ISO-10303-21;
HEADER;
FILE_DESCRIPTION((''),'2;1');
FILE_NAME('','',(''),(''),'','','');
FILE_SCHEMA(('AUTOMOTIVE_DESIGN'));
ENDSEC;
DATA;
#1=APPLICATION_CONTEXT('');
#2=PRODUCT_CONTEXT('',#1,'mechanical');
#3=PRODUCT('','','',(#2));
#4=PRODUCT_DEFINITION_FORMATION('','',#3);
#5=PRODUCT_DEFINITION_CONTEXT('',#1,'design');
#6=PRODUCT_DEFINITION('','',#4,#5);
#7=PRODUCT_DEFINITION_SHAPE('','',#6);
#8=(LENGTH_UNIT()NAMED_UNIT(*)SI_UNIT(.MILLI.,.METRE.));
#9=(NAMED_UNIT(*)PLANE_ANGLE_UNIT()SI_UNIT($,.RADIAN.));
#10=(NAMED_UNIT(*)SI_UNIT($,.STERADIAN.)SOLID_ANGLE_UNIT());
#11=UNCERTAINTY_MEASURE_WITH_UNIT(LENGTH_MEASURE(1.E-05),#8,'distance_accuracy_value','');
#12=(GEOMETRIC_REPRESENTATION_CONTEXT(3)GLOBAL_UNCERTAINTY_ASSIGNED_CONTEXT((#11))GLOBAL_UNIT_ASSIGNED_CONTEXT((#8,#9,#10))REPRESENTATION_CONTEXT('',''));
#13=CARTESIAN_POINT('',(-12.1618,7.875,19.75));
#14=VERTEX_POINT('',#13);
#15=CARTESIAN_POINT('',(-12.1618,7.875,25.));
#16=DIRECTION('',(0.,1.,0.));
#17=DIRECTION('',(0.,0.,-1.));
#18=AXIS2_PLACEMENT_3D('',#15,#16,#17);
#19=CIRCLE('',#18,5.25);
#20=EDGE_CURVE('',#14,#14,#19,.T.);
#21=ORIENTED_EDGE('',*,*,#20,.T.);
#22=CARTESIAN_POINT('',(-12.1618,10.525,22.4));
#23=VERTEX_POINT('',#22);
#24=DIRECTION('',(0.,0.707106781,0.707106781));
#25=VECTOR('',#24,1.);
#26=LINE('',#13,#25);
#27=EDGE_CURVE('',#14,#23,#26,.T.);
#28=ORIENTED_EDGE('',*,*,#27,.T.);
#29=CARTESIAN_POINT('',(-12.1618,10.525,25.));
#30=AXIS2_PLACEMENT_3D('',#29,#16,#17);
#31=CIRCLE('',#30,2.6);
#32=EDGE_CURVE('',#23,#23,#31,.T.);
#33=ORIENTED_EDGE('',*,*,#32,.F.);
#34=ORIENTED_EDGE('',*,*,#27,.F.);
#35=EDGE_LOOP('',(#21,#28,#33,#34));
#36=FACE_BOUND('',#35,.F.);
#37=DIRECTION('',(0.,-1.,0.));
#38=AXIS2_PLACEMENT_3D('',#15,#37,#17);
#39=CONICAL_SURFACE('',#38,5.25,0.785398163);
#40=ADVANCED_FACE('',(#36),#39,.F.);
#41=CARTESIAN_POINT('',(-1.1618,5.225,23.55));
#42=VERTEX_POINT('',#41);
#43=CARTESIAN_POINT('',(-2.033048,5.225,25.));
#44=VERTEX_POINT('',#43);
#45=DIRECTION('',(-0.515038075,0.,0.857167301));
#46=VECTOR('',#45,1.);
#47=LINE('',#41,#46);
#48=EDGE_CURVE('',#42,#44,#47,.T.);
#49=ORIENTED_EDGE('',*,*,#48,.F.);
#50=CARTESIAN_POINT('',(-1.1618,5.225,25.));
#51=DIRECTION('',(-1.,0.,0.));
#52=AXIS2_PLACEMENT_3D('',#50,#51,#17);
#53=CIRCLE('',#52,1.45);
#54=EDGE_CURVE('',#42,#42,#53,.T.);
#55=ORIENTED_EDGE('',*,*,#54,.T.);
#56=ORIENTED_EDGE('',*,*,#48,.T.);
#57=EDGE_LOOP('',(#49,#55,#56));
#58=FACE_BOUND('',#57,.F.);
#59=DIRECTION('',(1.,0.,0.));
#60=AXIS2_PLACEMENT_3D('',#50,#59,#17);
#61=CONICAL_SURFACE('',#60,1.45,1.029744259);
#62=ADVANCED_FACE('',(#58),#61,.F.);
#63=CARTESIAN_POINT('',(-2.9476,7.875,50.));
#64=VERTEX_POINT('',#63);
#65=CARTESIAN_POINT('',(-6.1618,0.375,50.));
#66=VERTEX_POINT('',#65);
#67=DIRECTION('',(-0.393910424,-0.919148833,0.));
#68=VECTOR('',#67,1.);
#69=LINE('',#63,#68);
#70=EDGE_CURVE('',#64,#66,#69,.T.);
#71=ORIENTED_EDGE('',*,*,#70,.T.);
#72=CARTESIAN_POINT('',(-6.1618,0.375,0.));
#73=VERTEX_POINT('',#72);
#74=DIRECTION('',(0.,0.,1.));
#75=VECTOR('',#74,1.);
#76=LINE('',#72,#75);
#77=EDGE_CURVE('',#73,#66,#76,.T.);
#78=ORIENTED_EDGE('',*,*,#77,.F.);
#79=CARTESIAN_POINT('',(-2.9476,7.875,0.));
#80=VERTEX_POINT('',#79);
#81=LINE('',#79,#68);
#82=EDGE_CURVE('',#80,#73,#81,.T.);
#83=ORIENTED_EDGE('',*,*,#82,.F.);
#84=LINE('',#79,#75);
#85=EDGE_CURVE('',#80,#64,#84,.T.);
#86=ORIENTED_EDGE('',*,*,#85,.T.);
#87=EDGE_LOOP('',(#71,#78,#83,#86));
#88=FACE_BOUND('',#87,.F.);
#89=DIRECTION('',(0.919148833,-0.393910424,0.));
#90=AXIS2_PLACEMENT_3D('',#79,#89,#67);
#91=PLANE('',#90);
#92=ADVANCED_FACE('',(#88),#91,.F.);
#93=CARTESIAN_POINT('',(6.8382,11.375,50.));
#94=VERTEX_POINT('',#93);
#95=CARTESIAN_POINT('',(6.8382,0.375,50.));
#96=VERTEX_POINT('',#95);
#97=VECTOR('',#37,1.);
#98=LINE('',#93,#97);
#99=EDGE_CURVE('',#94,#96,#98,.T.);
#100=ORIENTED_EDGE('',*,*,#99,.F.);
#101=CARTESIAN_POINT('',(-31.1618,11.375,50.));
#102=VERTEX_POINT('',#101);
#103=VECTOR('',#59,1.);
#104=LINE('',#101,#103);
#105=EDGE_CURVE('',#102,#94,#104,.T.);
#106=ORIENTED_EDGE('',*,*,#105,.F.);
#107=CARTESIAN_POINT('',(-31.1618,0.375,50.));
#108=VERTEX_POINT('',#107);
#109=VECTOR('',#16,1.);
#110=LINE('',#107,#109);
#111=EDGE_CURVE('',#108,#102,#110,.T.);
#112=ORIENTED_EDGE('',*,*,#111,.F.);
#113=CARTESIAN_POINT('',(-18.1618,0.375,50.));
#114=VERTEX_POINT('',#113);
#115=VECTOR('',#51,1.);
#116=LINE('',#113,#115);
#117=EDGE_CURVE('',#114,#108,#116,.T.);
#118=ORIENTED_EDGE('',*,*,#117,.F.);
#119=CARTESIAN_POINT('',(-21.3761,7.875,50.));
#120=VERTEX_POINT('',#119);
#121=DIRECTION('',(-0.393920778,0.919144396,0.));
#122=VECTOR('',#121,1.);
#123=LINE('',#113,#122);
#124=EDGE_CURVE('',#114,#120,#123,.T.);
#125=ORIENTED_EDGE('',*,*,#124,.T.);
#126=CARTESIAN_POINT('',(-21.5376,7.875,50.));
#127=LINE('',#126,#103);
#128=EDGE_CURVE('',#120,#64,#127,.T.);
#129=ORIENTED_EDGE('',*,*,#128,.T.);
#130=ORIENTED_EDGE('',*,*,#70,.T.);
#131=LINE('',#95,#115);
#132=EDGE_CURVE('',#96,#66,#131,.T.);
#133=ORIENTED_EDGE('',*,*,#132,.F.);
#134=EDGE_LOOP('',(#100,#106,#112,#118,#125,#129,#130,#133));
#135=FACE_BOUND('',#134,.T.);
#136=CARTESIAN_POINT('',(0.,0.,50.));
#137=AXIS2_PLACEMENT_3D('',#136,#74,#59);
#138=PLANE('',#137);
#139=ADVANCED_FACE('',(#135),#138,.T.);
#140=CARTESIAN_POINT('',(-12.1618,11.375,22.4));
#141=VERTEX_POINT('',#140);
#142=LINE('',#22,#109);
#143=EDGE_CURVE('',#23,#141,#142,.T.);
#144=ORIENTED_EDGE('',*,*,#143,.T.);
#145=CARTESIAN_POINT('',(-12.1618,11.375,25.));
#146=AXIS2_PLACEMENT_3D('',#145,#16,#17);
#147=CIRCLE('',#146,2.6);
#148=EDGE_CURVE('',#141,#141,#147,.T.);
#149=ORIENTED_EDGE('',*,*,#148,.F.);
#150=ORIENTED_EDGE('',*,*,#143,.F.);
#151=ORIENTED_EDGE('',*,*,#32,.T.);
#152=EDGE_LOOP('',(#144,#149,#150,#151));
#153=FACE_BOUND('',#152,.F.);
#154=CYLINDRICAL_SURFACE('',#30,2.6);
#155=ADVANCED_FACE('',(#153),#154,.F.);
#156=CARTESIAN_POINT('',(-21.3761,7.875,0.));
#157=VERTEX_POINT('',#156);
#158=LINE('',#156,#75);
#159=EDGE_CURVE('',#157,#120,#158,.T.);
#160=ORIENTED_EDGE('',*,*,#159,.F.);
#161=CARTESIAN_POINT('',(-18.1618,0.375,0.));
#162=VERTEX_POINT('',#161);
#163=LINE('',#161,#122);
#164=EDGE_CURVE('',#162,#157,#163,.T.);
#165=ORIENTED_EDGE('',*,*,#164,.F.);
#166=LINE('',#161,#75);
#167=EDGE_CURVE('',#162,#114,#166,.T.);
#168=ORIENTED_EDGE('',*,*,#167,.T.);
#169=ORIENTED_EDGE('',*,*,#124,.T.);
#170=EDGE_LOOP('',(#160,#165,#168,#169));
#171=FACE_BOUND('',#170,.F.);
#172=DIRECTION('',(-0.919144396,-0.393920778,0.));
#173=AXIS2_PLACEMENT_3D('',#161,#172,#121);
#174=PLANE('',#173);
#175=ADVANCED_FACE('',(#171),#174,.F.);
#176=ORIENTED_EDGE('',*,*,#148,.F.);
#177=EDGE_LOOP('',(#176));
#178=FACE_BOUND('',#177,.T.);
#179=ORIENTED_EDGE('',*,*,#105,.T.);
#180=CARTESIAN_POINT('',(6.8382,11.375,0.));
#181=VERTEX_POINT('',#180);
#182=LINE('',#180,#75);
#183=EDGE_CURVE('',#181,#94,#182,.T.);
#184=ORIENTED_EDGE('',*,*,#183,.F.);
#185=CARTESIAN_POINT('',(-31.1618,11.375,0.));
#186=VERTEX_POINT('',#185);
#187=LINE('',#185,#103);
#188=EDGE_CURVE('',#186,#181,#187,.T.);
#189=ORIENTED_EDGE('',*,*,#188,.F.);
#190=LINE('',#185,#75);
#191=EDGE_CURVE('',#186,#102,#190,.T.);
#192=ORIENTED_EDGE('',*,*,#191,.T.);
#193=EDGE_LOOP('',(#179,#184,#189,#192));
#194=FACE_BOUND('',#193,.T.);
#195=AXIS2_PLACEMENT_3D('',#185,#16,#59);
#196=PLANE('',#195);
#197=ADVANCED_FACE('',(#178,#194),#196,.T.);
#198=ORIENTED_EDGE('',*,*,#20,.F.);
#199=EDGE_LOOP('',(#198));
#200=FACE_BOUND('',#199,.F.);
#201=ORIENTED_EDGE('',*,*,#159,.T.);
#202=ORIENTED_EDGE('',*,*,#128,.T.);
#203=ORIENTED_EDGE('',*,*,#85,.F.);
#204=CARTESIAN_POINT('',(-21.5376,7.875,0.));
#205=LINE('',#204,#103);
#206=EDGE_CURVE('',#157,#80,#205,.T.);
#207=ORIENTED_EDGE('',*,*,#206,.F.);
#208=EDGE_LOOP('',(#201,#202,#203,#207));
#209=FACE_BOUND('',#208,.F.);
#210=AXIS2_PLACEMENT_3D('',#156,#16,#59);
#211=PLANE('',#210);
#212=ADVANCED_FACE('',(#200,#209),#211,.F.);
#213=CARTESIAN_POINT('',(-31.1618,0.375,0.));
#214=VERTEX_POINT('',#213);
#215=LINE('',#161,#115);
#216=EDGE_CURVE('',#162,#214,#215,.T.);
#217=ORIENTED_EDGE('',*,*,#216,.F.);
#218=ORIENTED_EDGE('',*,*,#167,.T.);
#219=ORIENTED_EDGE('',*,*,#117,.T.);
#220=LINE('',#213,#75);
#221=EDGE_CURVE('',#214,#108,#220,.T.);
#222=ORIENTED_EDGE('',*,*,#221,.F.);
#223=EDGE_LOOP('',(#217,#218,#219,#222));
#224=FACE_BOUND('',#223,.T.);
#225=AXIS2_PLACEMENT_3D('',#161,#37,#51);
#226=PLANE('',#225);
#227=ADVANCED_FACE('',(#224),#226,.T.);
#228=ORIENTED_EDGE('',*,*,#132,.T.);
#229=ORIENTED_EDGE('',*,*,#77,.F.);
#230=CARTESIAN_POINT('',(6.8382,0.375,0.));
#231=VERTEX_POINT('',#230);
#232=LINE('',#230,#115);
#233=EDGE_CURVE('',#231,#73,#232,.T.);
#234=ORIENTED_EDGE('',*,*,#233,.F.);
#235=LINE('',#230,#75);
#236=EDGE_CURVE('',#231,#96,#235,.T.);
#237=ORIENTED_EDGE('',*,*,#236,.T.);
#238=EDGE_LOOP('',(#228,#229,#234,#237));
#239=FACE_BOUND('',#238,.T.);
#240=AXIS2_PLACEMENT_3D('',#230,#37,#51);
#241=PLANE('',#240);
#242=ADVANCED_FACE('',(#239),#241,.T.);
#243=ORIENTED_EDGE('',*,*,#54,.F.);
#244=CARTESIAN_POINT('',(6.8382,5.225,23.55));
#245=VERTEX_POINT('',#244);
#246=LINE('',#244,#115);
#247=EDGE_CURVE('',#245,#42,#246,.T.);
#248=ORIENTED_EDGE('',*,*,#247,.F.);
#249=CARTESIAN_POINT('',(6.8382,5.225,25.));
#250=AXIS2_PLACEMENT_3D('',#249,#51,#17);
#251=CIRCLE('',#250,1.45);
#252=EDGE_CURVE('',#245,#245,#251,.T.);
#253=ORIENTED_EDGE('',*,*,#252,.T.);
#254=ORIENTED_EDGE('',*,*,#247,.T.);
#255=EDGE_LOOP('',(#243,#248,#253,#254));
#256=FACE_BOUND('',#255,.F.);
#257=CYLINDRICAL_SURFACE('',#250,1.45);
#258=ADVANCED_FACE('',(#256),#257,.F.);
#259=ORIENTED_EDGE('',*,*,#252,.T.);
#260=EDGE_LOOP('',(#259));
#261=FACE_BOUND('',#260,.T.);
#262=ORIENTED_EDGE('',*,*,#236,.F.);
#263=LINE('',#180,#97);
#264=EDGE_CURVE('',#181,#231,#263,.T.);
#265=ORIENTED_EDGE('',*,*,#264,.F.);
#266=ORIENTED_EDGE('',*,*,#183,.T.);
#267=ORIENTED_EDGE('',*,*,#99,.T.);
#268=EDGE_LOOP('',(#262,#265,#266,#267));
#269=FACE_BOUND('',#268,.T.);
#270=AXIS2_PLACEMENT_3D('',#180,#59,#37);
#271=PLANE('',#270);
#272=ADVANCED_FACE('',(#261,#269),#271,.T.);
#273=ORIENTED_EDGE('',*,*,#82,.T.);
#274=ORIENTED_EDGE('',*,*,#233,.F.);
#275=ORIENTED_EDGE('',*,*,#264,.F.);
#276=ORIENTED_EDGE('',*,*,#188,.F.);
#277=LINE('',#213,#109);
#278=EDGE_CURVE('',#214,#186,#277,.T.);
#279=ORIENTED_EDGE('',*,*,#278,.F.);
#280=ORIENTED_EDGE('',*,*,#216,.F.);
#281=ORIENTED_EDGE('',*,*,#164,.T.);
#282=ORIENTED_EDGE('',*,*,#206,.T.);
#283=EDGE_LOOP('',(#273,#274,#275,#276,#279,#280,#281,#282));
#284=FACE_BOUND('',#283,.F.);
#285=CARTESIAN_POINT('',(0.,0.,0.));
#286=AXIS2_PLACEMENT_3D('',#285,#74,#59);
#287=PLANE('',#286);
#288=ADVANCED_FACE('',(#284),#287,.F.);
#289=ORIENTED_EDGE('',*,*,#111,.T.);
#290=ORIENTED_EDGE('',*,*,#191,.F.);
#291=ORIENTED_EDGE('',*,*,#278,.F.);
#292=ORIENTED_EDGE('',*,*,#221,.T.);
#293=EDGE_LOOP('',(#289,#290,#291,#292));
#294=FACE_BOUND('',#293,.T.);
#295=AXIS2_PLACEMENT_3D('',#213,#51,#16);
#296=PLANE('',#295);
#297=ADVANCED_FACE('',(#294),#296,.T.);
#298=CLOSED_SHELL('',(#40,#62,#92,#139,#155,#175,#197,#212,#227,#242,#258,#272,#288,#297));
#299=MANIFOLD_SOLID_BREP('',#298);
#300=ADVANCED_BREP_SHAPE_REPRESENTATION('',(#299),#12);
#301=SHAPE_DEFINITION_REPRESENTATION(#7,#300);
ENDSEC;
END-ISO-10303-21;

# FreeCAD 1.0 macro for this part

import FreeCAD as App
import Part
import Sketcher
Q = App.Units.Quantity


def add_polygon(sketch, points):
    """Adds a closed chain of lines whose ends are joined by coincident constraints."""
    first, n = sketch.GeometryCount, len(points)
    for a, b in zip(points, points[1:] + points[:1]):
        sketch.addGeometry(Part.LineSegment(App.Vector(*a, 0), App.Vector(*b, 0)), False)
    for i in range(n):
        sketch.addConstraint(Sketcher.Constraint("Coincident", first + i, 2, first + (i + 1) % n, 1))

doc = App.newDocument("Part")
body = doc.addObject("PartDesign::Body", "Body")

# Sketch on XY plane
sketch1 = body.newObject("Sketcher::SketchObject", "Sketch")
sketch1.AttachmentSupport = (doc.getObject("XY_Plane"), [""])
sketch1.MapMode = "FlatFace"
add_polygon(sketch1, [(-31, 0), (-18, 0), (-21, 8), (-3, 8), (-6, 0), (7, 0), (7, 11), (-31, 11)])  # lines 0-7
sketch1.addConstraint([
    Sketcher.Constraint("Horizontal", 0),
    Sketcher.Constraint("Horizontal", 2),
    Sketcher.Constraint("Horizontal", 4),
    Sketcher.Constraint("Vertical", 5),
    Sketcher.Constraint("Horizontal", 6),
    Sketcher.Constraint("Vertical", 7),
    Sketcher.Constraint("Horizontal", 0, 2, 3, 2),
    Sketcher.Constraint("Equal", 0, 4),
    Sketcher.Constraint("Equal", 1, 3),
    Sketcher.Constraint("DistanceX", 0, 1, 0, 2, Q("13 mm")),
    Sketcher.Constraint("DistanceX", 6, 2, 6, 1, Q("38 mm")),
    Sketcher.Constraint("DistanceY", 5, 1, 5, 2, Q("11 mm")),
    Sketcher.Constraint("DistanceY", 0, 2, 1, 2, Q("7.5 mm")),
    Sketcher.Constraint("DistanceX", 2, 1, 2, 2, Q("18.4285 mm")),
    Sketcher.Constraint("DistanceY", -1, 1, 0, 2, Q("0.375 mm")),
    Sketcher.Constraint("DistanceX", 1, 2, -1, 1, Q("21.376 mm")),
])
pad1 = body.newObject("PartDesign::Pad", "Pad")
pad1.Profile = sketch1
pad1.Length = 50

# Sketch on YZ plane
sketch2 = body.newObject("Sketcher::SketchObject", "Sketch001")
sketch2.AttachmentSupport = (doc.getObject("YZ_Plane"), [""])
sketch2.MapMode = "FlatFace"
sketch2.AttachmentOffset = App.Placement(App.Vector(0, 0, 6.8382), App.Rotation())
sketch2.addGeometry(Part.Circle(App.Vector(5.2, 25, 0), App.Vector(0, 0, 1), 1.4), False)
sketch2.addConstraint([
    Sketcher.Constraint("Diameter", 0, Q("2.9 mm")),
    Sketcher.Constraint("DistanceY", -1, 1, 0, 3, Q("25 mm")),
    Sketcher.Constraint("DistanceX", -1, 1, 0, 3, Q("5.225 mm")),
])
doc.recompute()
hole = body.newObject("PartDesign::Hole", "Hole")
hole.Profile = sketch2
hole.ThreadType = "None"
hole.Diameter = 2.9
hole.DepthType = "Dimension"
hole.Depth = 8
hole.DrillPoint = "Angled"
hole.DrillPointAngle = 118

# Sketch on XZ plane
sketch3 = body.newObject("Sketcher::SketchObject", "Sketch002")
sketch3.AttachmentSupport = (doc.getObject("XZ_Plane"), [""])
sketch3.MapMode = "FlatFace"
sketch3.AttachmentOffset = App.Placement(App.Vector(0, 0, -7.875), App.Rotation())
sketch3.addGeometry(Part.Circle(App.Vector(-12.2, 25, 0), App.Vector(0, 0, 1), 2.6), False)
sketch3.addConstraint([
    Sketcher.Constraint("Diameter", 0, Q("5.2 mm")),
    Sketcher.Constraint("DistanceY", -1, 1, 0, 3, Q("25 mm")),
    Sketcher.Constraint("DistanceX", 0, 3, -1, 1, Q("12.1618 mm")),
])
doc.recompute()
hole2 = body.newObject("PartDesign::Hole", "Hole001")
hole2.Profile = sketch3
hole2.ThreadType = "None"
hole2.Diameter = 5.2
hole2.DepthType = "ThroughAll"
hole2.HoleCutType = "Countersink"
hole2.HoleCutDiameter = 10.5
hole2.HoleCutCountersinkAngle = 90

doc.recompute()
